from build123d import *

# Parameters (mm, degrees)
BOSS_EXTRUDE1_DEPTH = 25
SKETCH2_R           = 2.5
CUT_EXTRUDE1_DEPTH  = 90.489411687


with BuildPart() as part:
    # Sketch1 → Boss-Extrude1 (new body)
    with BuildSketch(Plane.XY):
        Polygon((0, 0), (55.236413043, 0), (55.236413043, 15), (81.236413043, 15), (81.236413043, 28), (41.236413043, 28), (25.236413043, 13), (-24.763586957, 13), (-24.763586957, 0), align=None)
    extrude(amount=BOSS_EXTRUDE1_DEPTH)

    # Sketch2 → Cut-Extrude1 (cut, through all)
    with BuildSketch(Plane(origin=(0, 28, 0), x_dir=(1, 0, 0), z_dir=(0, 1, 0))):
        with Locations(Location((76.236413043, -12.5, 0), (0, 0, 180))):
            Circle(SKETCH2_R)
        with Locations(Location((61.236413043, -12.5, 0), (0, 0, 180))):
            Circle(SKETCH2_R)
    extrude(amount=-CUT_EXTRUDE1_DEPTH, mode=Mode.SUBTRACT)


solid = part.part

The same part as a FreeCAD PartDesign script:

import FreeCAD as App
import Part
import Sketcher

V = App.Vector

doc = App.newDocument("Part")
body = doc.addObject("PartDesign::Body", "Body")

sketch1 = doc.addObject("Sketcher::SketchObject", "Sketch")
body.addObject(sketch1)
sketch1.AttachmentSupport = (doc.XY_Plane, [""])
sketch1.MapMode = "FlatFace"
sketch1.addGeometry(Part.LineSegment(V(55, 0, 0), V(55, 15, 0)), False)
sketch1.addGeometry(Part.LineSegment(V(55, 15, 0), V(81, 15, 0)), False)
sketch1.addGeometry(Part.LineSegment(V(81, 15, 0), V(81, 28, 0)), False)
sketch1.addGeometry(Part.LineSegment(V(81, 28, 0), V(41, 28, 0)), False)
sketch1.addGeometry(Part.LineSegment(V(41, 28, 0), V(25, 13, 0)), False)
sketch1.addGeometry(Part.LineSegment(V(25, 13, 0), V(-25, 13, 0)), False)
sketch1.addGeometry(Part.LineSegment(V(-25, 13, 0), V(-25, 0, 0)), False)
sketch1.addGeometry(Part.LineSegment(V(-25, 0, 0), V(55, 0, 0)), False)
sketch1.addConstraint(Sketcher.Constraint("Coincident", 0, 2, 1, 1))
sketch1.addConstraint(Sketcher.Constraint("Coincident", 1, 2, 2, 1))
sketch1.addConstraint(Sketcher.Constraint("Coincident", 2, 2, 3, 1))
sketch1.addConstraint(Sketcher.Constraint("Coincident", 3, 2, 4, 1))
sketch1.addConstraint(Sketcher.Constraint("Coincident", 4, 2, 5, 1))
sketch1.addConstraint(Sketcher.Constraint("Coincident", 5, 2, 6, 1))
sketch1.addConstraint(Sketcher.Constraint("Coincident", 6, 2, 7, 1))
sketch1.addConstraint(Sketcher.Constraint("Coincident", 7, 2, 0, 1))
sketch1.addConstraint(Sketcher.Constraint("Vertical", 0))
sketch1.addConstraint(Sketcher.Constraint("Horizontal", 1))
sketch1.addConstraint(Sketcher.Constraint("Vertical", 2))
sketch1.addConstraint(Sketcher.Constraint("Horizontal", 3))
sketch1.addConstraint(Sketcher.Constraint("Horizontal", 5))
sketch1.addConstraint(Sketcher.Constraint("Vertical", 6))
sketch1.addConstraint(Sketcher.Constraint("Horizontal", 7))
sketch1.addConstraint(Sketcher.Constraint("PointOnObject", 6, 2, -1))
sketch1.addConstraint(Sketcher.Constraint("Equal", 2, 6))
sketch1.addConstraint(Sketcher.Constraint("DistanceX", 1, 1, 1, 2, 26.0))
sketch1.addConstraint(Sketcher.Constraint("DistanceX", 3, 2, 3, 1, 40.0))
sketch1.addConstraint(Sketcher.Constraint("DistanceX", 5, 2, 5, 1, 50.0))
sketch1.addConstraint(Sketcher.Constraint("DistanceX", 7, 1, 7, 2, 80.0))
sketch1.addConstraint(Sketcher.Constraint("DistanceY", 0, 1, 0, 2, 15.0))
sketch1.addConstraint(Sketcher.Constraint("DistanceY", 2, 1, 2, 2, 13.0))
sketch1.addConstraint(Sketcher.Constraint("DistanceX", -1, 1, 0, 2, 55.236413))
pad1 = doc.addObject("PartDesign::Pad", "Pad")
body.addObject(pad1)
pad1.Profile = sketch1
pad1.Length = 25

sketch2 = doc.addObject("Sketcher::SketchObject", "Sketch001")
body.addObject(sketch2)
sketch2.AttachmentSupport = (doc.XZ_Plane, [""])
sketch2.MapMode = "FlatFace"
sketch2.AttachmentOffset = App.Placement(V(0, 0, -28), App.Rotation())
sketch2.addGeometry(Part.Circle(V(76.2, 12.5, 0), V(0, 0, 1), 2.5), False)
sketch2.addGeometry(Part.Circle(V(61.2, 12.5, 0), V(0, 0, 1), 2.5), False)
sketch2.addConstraint(Sketcher.Constraint("Equal", 0, 1))
sketch2.addConstraint(Sketcher.Constraint("Horizontal", 0, 3, 1, 3))
sketch2.addConstraint(Sketcher.Constraint("Diameter", 0, 5.0))
sketch2.addConstraint(Sketcher.Constraint("DistanceX", 1, 3, 0, 3, 15.0))
sketch2.addConstraint(Sketcher.Constraint("DistanceY", -1, 1, 0, 3, 12.5))
sketch2.addConstraint(Sketcher.Constraint("DistanceX", -1, 1, 0, 3, 76.236413))
pocket1 = doc.addObject("PartDesign::Pocket", "Pocket")
body.addObject(pocket1)
pocket1.Profile = sketch2
pocket1.Type = "ThroughAll"
pocket1.Reversed = True

doc.recompute()
